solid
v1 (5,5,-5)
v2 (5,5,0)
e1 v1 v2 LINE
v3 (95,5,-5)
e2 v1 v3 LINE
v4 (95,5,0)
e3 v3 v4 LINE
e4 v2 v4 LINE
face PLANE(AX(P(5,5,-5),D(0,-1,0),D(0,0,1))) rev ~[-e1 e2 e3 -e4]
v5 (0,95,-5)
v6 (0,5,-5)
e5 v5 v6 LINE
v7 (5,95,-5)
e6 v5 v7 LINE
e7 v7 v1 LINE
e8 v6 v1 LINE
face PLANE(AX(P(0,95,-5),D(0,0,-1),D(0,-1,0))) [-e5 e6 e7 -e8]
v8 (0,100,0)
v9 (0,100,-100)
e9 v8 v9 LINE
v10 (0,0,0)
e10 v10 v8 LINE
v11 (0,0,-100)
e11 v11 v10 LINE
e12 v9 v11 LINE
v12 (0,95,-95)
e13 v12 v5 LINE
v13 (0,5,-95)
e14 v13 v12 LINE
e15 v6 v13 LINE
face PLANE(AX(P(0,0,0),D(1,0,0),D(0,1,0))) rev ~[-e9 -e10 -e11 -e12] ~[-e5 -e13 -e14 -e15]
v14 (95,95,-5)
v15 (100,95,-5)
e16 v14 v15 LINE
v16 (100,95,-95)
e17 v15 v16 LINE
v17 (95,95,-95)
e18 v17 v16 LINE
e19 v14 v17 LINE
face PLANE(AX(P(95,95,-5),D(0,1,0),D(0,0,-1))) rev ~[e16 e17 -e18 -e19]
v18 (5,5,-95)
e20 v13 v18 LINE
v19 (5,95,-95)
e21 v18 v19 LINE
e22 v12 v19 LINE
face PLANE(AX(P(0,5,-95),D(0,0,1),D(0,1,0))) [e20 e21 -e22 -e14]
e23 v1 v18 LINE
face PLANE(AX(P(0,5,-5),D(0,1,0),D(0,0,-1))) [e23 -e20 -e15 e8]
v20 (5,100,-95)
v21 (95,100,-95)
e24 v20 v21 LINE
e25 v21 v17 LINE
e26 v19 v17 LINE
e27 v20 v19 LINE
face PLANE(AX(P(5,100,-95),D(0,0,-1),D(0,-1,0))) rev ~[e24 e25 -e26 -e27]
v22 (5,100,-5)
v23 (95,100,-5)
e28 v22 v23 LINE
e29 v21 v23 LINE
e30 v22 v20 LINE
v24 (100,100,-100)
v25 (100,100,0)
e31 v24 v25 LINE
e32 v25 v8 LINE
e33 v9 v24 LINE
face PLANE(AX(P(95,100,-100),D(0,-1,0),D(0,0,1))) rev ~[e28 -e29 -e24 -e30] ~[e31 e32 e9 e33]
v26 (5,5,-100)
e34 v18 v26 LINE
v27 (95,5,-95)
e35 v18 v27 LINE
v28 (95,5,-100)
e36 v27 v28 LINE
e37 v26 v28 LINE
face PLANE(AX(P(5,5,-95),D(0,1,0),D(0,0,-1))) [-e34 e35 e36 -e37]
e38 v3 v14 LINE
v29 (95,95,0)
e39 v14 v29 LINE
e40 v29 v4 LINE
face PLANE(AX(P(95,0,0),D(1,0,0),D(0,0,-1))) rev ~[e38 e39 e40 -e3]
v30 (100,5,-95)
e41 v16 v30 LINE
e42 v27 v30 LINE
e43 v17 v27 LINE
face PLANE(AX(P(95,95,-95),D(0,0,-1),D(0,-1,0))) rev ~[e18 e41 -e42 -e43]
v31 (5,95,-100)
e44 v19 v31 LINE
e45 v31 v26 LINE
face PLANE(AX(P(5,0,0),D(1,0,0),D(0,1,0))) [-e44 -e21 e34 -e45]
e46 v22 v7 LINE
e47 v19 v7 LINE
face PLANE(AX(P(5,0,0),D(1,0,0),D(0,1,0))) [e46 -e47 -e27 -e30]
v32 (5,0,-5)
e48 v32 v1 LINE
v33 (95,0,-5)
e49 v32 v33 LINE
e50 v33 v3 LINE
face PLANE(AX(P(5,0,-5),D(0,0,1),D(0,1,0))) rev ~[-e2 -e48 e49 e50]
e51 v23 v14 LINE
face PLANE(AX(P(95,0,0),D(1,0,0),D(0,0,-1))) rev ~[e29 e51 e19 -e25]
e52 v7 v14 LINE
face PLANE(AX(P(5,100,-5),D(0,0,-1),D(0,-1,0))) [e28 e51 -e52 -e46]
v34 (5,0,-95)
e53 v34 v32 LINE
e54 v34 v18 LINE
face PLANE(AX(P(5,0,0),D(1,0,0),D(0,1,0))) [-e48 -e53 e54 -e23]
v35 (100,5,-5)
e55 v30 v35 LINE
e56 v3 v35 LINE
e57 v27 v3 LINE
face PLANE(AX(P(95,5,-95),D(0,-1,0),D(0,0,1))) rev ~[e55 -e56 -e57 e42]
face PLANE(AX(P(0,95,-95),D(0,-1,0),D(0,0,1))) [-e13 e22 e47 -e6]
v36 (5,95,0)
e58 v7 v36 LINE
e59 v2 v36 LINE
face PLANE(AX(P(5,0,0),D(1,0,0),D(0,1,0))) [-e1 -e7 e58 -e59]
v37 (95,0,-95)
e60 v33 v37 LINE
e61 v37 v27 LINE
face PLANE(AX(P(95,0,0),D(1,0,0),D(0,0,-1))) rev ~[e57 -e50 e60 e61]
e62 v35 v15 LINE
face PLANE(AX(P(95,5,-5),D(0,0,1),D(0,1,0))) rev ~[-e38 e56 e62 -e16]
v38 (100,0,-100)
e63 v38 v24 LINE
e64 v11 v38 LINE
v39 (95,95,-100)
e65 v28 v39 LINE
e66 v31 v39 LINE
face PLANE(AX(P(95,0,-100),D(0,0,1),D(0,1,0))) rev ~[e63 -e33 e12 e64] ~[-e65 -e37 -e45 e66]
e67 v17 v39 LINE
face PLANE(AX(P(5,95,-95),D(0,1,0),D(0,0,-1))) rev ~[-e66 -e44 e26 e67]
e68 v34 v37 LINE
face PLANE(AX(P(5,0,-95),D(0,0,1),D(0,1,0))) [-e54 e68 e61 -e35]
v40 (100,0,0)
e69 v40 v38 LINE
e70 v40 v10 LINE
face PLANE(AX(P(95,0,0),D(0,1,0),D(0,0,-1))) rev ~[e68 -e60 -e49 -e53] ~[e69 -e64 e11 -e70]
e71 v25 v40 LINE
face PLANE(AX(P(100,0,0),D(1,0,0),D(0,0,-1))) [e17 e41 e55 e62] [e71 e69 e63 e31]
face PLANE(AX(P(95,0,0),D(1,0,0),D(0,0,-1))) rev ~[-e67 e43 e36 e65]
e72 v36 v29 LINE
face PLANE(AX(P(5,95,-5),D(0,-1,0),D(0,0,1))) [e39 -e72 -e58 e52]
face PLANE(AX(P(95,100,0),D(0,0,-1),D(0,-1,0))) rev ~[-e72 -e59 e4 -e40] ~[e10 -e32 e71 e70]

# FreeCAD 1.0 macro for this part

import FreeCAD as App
import Part
import Sketcher
Q = App.Units.Quantity

doc = App.newDocument("Part")
body = doc.addObject("PartDesign::Body", "Body")

sketch1 = body.newObject("Sketcher::SketchObject", "Sketch")
sketch1.AttachmentSupport = (doc.getObject("YZ_Plane"), [""])
sketch1.MapMode = "FlatFace"
sketch1.addGeometry(Part.LineSegment(App.Vector(100, 0, 0), App.Vector(0, 0, 0)), False)
sketch1.addGeometry(Part.LineSegment(App.Vector(0, 0, 0), App.Vector(0, -100, 0)), False)
sketch1.addGeometry(Part.LineSegment(App.Vector(0, -100, 0), App.Vector(100, -100, 0)), False)
sketch1.addGeometry(Part.LineSegment(App.Vector(100, -100, 0), App.Vector(100, 0, 0)), False)
sketch1.addGeometry(Part.LineSegment(App.Vector(95, -5, 0), App.Vector(95, -95, 0)), False)
sketch1.addGeometry(Part.LineSegment(App.Vector(95, -95, 0), App.Vector(5, -95, 0)), False)
sketch1.addGeometry(Part.LineSegment(App.Vector(5, -95, 0), App.Vector(5, -5, 0)), False)
sketch1.addGeometry(Part.LineSegment(App.Vector(5, -5, 0), App.Vector(95, -5, 0)), False)
sketch1.addConstraint(Sketcher.Constraint("Coincident", 0, 2, 1, 1))
sketch1.addConstraint(Sketcher.Constraint("Coincident", 1, 2, 2, 1))
sketch1.addConstraint(Sketcher.Constraint("Coincident", 2, 2, 3, 1))
sketch1.addConstraint(Sketcher.Constraint("Coincident", 3, 2, 0, 1))
sketch1.addConstraint(Sketcher.Constraint("Coincident", 4, 2, 5, 1))
sketch1.addConstraint(Sketcher.Constraint("Coincident", 5, 2, 6, 1))
sketch1.addConstraint(Sketcher.Constraint("Coincident", 6, 2, 7, 1))
sketch1.addConstraint(Sketcher.Constraint("Coincident", 7, 2, 4, 1))
sketch1.addConstraint(Sketcher.Constraint("Horizontal", 0))
sketch1.addConstraint(Sketcher.Constraint("Vertical", 1))
sketch1.addConstraint(Sketcher.Constraint("Horizontal", 2))
sketch1.addConstraint(Sketcher.Constraint("Vertical", 3))
sketch1.addConstraint(Sketcher.Constraint("Vertical", 4))
sketch1.addConstraint(Sketcher.Constraint("Horizontal", 5))
sketch1.addConstraint(Sketcher.Constraint("Vertical", 6))
sketch1.addConstraint(Sketcher.Constraint("Horizontal", 7))
sketch1.addConstraint(Sketcher.Constraint("Coincident", 0, 2, -1, 1))
sketch1.addConstraint(Sketcher.Constraint("Equal", 2, 1))
sketch1.addConstraint(Sketcher.Constraint("Equal", 7, 4))
sketch1.addConstraint(Sketcher.Constraint("DistanceX", 0, 2, 0, 1, Q("100 mm")))
sketch1.addConstraint(Sketcher.Constraint("DistanceX", -1, 1, 5, 2, Q("5 mm")))
sketch1.addConstraint(Sketcher.Constraint("DistanceY", 6, 2, -1, 1, Q("5 mm")))
sketch1.addConstraint(Sketcher.Constraint("DistanceX", 4, 2, 2, 2, Q("5 mm")))
pad1 = body.newObject("PartDesign::Pad", "Pad")
pad1.Profile = sketch1
pad1.Length = 5

sketch2 = body.newObject("Sketcher::SketchObject", "Sketch001")
sketch2.AttachmentSupport = (doc.getObject("YZ_Plane"), [""])
sketch2.MapMode = "FlatFace"
sketch2.AttachmentOffset = App.Placement(App.Vector(0, 0, 5), App.Rotation())
sketch2.addGeometry(Part.LineSegment(App.Vector(0, -95, 0), App.Vector(0, -100, 0)), False)
sketch2.addGeometry(Part.LineSegment(App.Vector(0, -100, 0), App.Vector(5, -100, 0)), False)
sketch2.addGeometry(Part.LineSegment(App.Vector(5, -100, 0), App.Vector(5, -95, 0)), False)
sketch2.addGeometry(Part.LineSegment(App.Vector(5, -95, 0), App.Vector(0, -95, 0)), False)
sketch2.addGeometry(Part.LineSegment(App.Vector(95, -95, 0), App.Vector(95, -100, 0)), False)
sketch2.addGeometry(Part.LineSegment(App.Vector(95, -100, 0), App.Vector(100, -100, 0)), False)
sketch2.addGeometry(Part.LineSegment(App.Vector(100, -100, 0), App.Vector(100, -95, 0)), False)
sketch2.addGeometry(Part.LineSegment(App.Vector(100, -95, 0), App.Vector(95, -95, 0)), False)
sketch2.addGeometry(Part.LineSegment(App.Vector(0, 0, 0), App.Vector(0, -5, 0)), False)
sketch2.addGeometry(Part.LineSegment(App.Vector(0, -5, 0), App.Vector(5, -5, 0)), False)
sketch2.addGeometry(Part.LineSegment(App.Vector(5, -5, 0), App.Vector(5, 0, 0)), False)
sketch2.addGeometry(Part.LineSegment(App.Vector(5, 0, 0), App.Vector(0, 0, 0)), False)
sketch2.addGeometry(Part.LineSegment(App.Vector(95, 0, 0), App.Vector(95, -5, 0)), False)
sketch2.addGeometry(Part.LineSegment(App.Vector(95, -5, 0), App.Vector(100, -5, 0)), False)
sketch2.addGeometry(Part.LineSegment(App.Vector(100, -5, 0), App.Vector(100, 0, 0)), False)
sketch2.addGeometry(Part.LineSegment(App.Vector(100, 0, 0), App.Vector(95, 0, 0)), False)
sketch2.addConstraint(Sketcher.Constraint("Coincident", 0, 2, 1, 1))
sketch2.addConstraint(Sketcher.Constraint("Coincident", 1, 2, 2, 1))
sketch2.addConstraint(Sketcher.Constraint("Coincident", 2, 2, 3, 1))
sketch2.addConstraint(Sketcher.Constraint("Coincident", 3, 2, 0, 1))
sketch2.addConstraint(Sketcher.Constraint("Coincident", 4, 2, 5, 1))
sketch2.addConstraint(Sketcher.Constraint("Coincident", 5, 2, 6, 1))
sketch2.addConstraint(Sketcher.Constraint("Coincident", 6, 2, 7, 1))
sketch2.addConstraint(Sketcher.Constraint("Coincident", 7, 2, 4, 1))
sketch2.addConstraint(Sketcher.Constraint("Coincident", 8, 2, 9, 1))
sketch2.addConstraint(Sketcher.Constraint("Coincident", 9, 2, 10, 1))
sketch2.addConstraint(Sketcher.Constraint("Coincident", 10, 2, 11, 1))
sketch2.addConstraint(Sketcher.Constraint("Coincident", 11, 2, 8, 1))
sketch2.addConstraint(Sketcher.Constraint("Coincident", 12, 2, 13, 1))
sketch2.addConstraint(Sketcher.Constraint("Coincident", 13, 2, 14, 1))
sketch2.addConstraint(Sketcher.Constraint("Coincident", 14, 2, 15, 1))
sketch2.addConstraint(Sketcher.Constraint("Coincident", 15, 2, 12, 1))
sketch2.addConstraint(Sketcher.Constraint("Vertical", 0))
sketch2.addConstraint(Sketcher.Constraint("Horizontal", 1))
sketch2.addConstraint(Sketcher.Constraint("Vertical", 2))
sketch2.addConstraint(Sketcher.Constraint("Horizontal", 3))
sketch2.addConstraint(Sketcher.Constraint("Vertical", 4))
sketch2.addConstraint(Sketcher.Constraint("Horizontal", 5))
sketch2.addConstraint(Sketcher.Constraint("Vertical", 6))
sketch2.addConstraint(Sketcher.Constraint("Horizontal", 7))
sketch2.addConstraint(Sketcher.Constraint("Vertical", 8))
sketch2.addConstraint(Sketcher.Constraint("Horizontal", 9))
sketch2.addConstraint(Sketcher.Constraint("Vertical", 10))
sketch2.addConstraint(Sketcher.Constraint("Horizontal", 11))
sketch2.addConstraint(Sketcher.Constraint("Vertical", 12))
sketch2.addConstraint(Sketcher.Constraint("Horizontal", 13))
sketch2.addConstraint(Sketcher.Constraint("Vertical", 14))
sketch2.addConstraint(Sketcher.Constraint("Horizontal", 15))
sketch2.addConstraint(Sketcher.Constraint("Coincident", 11, 2, -1, 1))
sketch2.addConstraint(Sketcher.Constraint("PointOnObject", 0, 2, -2))
sketch2.addConstraint(Sketcher.Constraint("PointOnObject", 14, 2, -1))
sketch2.addConstraint(Sketcher.Constraint("Horizontal", 1, 2, 4, 2))
sketch2.addConstraint(Sketcher.Constraint("Horizontal", 3, 2, 6, 2))
sketch2.addConstraint(Sketcher.Constraint("Horizontal", 9, 2, 12, 2))
sketch2.addConstraint(Sketcher.Constraint("Vertical", 2, 2, 9, 2))
sketch2.addConstraint(Sketcher.Constraint("Vertical", 7, 2, 12, 2))
sketch2.addConstraint(Sketcher.Constraint("Vertical", 6, 2, 13, 2))
sketch2.addConstraint(Sketcher.Constraint("Equal", 3, 5))
sketch2.addConstraint(Sketcher.Constraint("Equal", 15, 0))
sketch2.addConstraint(Sketcher.Constraint("Equal", 6, 8))
sketch2.addConstraint(Sketcher.Constraint("DistanceX", 1, 1, 1, 2, Q("5 mm")))
sketch2.addConstraint(Sketcher.Constraint("DistanceY", 0, 2, -1, 1, Q("100 mm")))
sketch2.addConstraint(Sketcher.Constraint("DistanceX", -1, 1, 4, 2, Q("95 mm")))
pad2 = body.newObject("PartDesign::Pad", "Pad001")
pad2.Profile = sketch2
pad2.Length = 90

sketch3 = body.newObject("Sketcher::SketchObject", "Sketch002")
sketch3.AttachmentSupport = (doc.getObject("YZ_Plane"), [""])
sketch3.MapMode = "FlatFace"
sketch3.AttachmentOffset = App.Placement(App.Vector(0, 0, 95), App.Rotation())
sketch3.addGeometry(Part.LineSegment(App.Vector(0, 0, 0), App.Vector(0, -100, 0)), False)
sketch3.addGeometry(Part.LineSegment(App.Vector(0, -100, 0), App.Vector(100, -100, 0)), False)
sketch3.addGeometry(Part.LineSegment(App.Vector(100, -100, 0), App.Vector(100, 0, 0)), False)
sketch3.addGeometry(Part.LineSegment(App.Vector(100, 0, 0), App.Vector(0, 0, 0)), False)
sketch3.addGeometry(Part.LineSegment(App.Vector(95, -5, 0), App.Vector(95, -95, 0)), False)
sketch3.addGeometry(Part.LineSegment(App.Vector(95, -95, 0), App.Vector(5, -95, 0)), False)
sketch3.addGeometry(Part.LineSegment(App.Vector(5, -95, 0), App.Vector(5, -5, 0)), False)
sketch3.addGeometry(Part.LineSegment(App.Vector(5, -5, 0), App.Vector(95, -5, 0)), False)
sketch3.addConstraint(Sketcher.Constraint("Coincident", 0, 2, 1, 1))
sketch3.addConstraint(Sketcher.Constraint("Coincident", 1, 2, 2, 1))
sketch3.addConstraint(Sketcher.Constraint("Coincident", 2, 2, 3, 1))
sketch3.addConstraint(Sketcher.Constraint("Coincident", 3, 2, 0, 1))
sketch3.addConstraint(Sketcher.Constraint("Coincident", 4, 2, 5, 1))
sketch3.addConstraint(Sketcher.Constraint("Coincident", 5, 2, 6, 1))
sketch3.addConstraint(Sketcher.Constraint("Coincident", 6, 2, 7, 1))
sketch3.addConstraint(Sketcher.Constraint("Coincident", 7, 2, 4, 1))
sketch3.addConstraint(Sketcher.Constraint("Vertical", 0))
sketch3.addConstraint(Sketcher.Constraint("Horizontal", 1))
sketch3.addConstraint(Sketcher.Constraint("Vertical", 2))
sketch3.addConstraint(Sketcher.Constraint("Horizontal", 3))
sketch3.addConstraint(Sketcher.Constraint("Vertical", 4))
sketch3.addConstraint(Sketcher.Constraint("Horizontal", 5))
sketch3.addConstraint(Sketcher.Constraint("Vertical", 6))
sketch3.addConstraint(Sketcher.Constraint("Horizontal", 7))
sketch3.addConstraint(Sketcher.Constraint("Coincident", 3, 2, -1, 1))
sketch3.addConstraint(Sketcher.Constraint("Equal", 3, 0))
sketch3.addConstraint(Sketcher.Constraint("Equal", 7, 4))
sketch3.addConstraint(Sketcher.Constraint("DistanceX", 1, 1, 1, 2, Q("100 mm")))
sketch3.addConstraint(Sketcher.Constraint("DistanceX", 5, 2, 5, 1, Q("90 mm")))
sketch3.addConstraint(Sketcher.Constraint("DistanceX", -1, 1, 4, 2, Q("95 mm")))
sketch3.addConstraint(Sketcher.Constraint("DistanceY", 4, 2, -1, 1, Q("95 mm")))
pad3 = body.newObject("PartDesign::Pad", "Pad002")
pad3.Profile = sketch3
pad3.Length = 5

doc.recompute()
